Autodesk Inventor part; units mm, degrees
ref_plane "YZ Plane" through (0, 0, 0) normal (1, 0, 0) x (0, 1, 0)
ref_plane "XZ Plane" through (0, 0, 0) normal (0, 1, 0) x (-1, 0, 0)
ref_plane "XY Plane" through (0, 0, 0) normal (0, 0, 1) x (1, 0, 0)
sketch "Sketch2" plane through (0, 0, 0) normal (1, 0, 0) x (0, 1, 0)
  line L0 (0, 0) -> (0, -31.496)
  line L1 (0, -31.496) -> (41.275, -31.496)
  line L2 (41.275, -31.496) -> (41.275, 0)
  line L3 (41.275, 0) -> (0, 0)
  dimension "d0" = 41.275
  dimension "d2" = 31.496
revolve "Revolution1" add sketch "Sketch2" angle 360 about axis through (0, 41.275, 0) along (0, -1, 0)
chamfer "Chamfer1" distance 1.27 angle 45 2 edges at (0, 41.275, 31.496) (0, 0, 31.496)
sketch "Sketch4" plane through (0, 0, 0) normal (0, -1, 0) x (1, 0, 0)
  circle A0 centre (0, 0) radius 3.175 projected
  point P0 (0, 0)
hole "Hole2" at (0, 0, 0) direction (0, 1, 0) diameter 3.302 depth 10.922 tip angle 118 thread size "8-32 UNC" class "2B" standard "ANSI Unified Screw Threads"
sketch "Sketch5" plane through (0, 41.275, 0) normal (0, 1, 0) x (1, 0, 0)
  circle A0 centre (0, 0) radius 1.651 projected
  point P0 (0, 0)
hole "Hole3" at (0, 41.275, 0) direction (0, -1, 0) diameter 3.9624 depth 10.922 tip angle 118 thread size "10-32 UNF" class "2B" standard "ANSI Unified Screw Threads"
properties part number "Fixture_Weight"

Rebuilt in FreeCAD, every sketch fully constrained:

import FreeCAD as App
import Part
import Sketcher
from FreeCAD import Vector
Q = App.Units.Quantity


def edges_at(feature, points):
    """Names of the edges that pass closest to the given points."""
    edges = feature.Shape.Edges
    near = lambda p: min(range(len(edges)), key=lambda i: edges[i].distToShape(Part.Vertex(*p))[0])
    return sorted({f"Edge{near(p) + 1}" for p in points})


def add_polygon(sketch, points):
    """Adds a closed chain of lines whose ends are joined by coincident constraints."""
    first, n = sketch.GeometryCount, len(points)
    for a, b in zip(points, points[1:] + points[:1]):
        sketch.addGeometry(Part.LineSegment(App.Vector(*a, 0), App.Vector(*b, 0)), False)
    for i in range(n):
        sketch.addConstraint(Sketcher.Constraint("Coincident", first + i, 2, first + (i + 1) % n, 1))

doc = App.newDocument("Part")
body = doc.addObject("PartDesign::Body", "Body")

sketch1 = doc.addObject("Sketcher::SketchObject", "Sketch")
body.addObject(sketch1)
sketch1.AttachmentSupport = (doc.YZ_Plane, [""])
sketch1.MapMode = "FlatFace"
add_polygon(sketch1, [(41.275, 0), (0, 0), (0, -31.496), (41.275, -31.496)])
sketch1.addConstraint([
    Sketcher.Constraint("Horizontal", 0),
    Sketcher.Constraint("Vertical", 1),
    Sketcher.Constraint("Horizontal", 2),
    Sketcher.Constraint("Vertical", 3),
    Sketcher.Constraint("Coincident", 0, 2, -1, 1),
    Sketcher.Constraint("DistanceY", 1, 2, 1, 1, Q("1.24 in")),
    Sketcher.Constraint("DistanceX", 0, 2, 0, 1, Q("1.625 in")),
])
revolution = doc.addObject("PartDesign::Revolution", "Revolution")
body.addObject(revolution)
revolution.Profile = sketch1
revolution.ReferenceAxis = (sketch1, ["H_Axis"])
revolution.Angle = 360
doc.recompute()

chamfer = doc.addObject("PartDesign::Chamfer", "Chamfer")
body.addObject(chamfer)
chamfer.Base = (revolution, edges_at(revolution, [(0, 41.275, 31.496), (0, 0, 31.496)]))
chamfer.Size = Q("0.05 in")

sketch2 = doc.addObject("Sketcher::SketchObject", "Sketch001")
body.addObject(sketch2)
sketch2.AttachmentSupport = (doc.XZ_Plane, [""])
sketch2.MapMode = "FlatFace"
sketch2.addGeometry(Part.Circle(Vector(0, 0, 0), Vector(0, 0, 1), 1.651), False)
sketch2.addConstraint([
    Sketcher.Constraint("Coincident", 0, 3, -1, 1),
    Sketcher.Constraint("Diameter", 0, Q("0.13 in")),
])
doc.recompute()
hole = doc.addObject("PartDesign::Hole", "Hole")
body.addObject(hole)
hole.Profile = sketch2
hole.ThreadType = "None"
hole.Diameter = Q("0.13 in")
hole.DepthType = "Dimension"
hole.Depth = Q("0.43 in")
hole.DrillPoint = "Angled"
hole.DrillPointAngle = 118

sketch3 = doc.addObject("Sketcher::SketchObject", "Sketch002")
body.addObject(sketch3)
sketch3.AttachmentSupport = (doc.XZ_Plane, [""])
sketch3.MapMode = "FlatFace"
sketch3.AttachmentOffset = App.Placement(Vector(0, 0, -1.625 * 25.4), App.Rotation())
sketch3.addGeometry(Part.Circle(Vector(0, 0, 0), Vector(0, 0, 1), 1.9812), False)
sketch3.addConstraint([
    Sketcher.Constraint("Coincident", 0, 3, -1, 1),
    Sketcher.Constraint("Diameter", 0, Q("0.156 in")),
])
doc.recompute()
hole2 = doc.addObject("PartDesign::Hole", "Hole001")
body.addObject(hole2)
hole2.Profile = sketch3
hole2.ThreadType = "None"
hole2.Diameter = Q("0.156 in")
hole2.DepthType = "Dimension"
hole2.Depth = Q("0.43 in")
hole2.DrillPoint = "Angled"
hole2.DrillPointAngle = 118
hole2.Reversed = True

doc.recompute()
